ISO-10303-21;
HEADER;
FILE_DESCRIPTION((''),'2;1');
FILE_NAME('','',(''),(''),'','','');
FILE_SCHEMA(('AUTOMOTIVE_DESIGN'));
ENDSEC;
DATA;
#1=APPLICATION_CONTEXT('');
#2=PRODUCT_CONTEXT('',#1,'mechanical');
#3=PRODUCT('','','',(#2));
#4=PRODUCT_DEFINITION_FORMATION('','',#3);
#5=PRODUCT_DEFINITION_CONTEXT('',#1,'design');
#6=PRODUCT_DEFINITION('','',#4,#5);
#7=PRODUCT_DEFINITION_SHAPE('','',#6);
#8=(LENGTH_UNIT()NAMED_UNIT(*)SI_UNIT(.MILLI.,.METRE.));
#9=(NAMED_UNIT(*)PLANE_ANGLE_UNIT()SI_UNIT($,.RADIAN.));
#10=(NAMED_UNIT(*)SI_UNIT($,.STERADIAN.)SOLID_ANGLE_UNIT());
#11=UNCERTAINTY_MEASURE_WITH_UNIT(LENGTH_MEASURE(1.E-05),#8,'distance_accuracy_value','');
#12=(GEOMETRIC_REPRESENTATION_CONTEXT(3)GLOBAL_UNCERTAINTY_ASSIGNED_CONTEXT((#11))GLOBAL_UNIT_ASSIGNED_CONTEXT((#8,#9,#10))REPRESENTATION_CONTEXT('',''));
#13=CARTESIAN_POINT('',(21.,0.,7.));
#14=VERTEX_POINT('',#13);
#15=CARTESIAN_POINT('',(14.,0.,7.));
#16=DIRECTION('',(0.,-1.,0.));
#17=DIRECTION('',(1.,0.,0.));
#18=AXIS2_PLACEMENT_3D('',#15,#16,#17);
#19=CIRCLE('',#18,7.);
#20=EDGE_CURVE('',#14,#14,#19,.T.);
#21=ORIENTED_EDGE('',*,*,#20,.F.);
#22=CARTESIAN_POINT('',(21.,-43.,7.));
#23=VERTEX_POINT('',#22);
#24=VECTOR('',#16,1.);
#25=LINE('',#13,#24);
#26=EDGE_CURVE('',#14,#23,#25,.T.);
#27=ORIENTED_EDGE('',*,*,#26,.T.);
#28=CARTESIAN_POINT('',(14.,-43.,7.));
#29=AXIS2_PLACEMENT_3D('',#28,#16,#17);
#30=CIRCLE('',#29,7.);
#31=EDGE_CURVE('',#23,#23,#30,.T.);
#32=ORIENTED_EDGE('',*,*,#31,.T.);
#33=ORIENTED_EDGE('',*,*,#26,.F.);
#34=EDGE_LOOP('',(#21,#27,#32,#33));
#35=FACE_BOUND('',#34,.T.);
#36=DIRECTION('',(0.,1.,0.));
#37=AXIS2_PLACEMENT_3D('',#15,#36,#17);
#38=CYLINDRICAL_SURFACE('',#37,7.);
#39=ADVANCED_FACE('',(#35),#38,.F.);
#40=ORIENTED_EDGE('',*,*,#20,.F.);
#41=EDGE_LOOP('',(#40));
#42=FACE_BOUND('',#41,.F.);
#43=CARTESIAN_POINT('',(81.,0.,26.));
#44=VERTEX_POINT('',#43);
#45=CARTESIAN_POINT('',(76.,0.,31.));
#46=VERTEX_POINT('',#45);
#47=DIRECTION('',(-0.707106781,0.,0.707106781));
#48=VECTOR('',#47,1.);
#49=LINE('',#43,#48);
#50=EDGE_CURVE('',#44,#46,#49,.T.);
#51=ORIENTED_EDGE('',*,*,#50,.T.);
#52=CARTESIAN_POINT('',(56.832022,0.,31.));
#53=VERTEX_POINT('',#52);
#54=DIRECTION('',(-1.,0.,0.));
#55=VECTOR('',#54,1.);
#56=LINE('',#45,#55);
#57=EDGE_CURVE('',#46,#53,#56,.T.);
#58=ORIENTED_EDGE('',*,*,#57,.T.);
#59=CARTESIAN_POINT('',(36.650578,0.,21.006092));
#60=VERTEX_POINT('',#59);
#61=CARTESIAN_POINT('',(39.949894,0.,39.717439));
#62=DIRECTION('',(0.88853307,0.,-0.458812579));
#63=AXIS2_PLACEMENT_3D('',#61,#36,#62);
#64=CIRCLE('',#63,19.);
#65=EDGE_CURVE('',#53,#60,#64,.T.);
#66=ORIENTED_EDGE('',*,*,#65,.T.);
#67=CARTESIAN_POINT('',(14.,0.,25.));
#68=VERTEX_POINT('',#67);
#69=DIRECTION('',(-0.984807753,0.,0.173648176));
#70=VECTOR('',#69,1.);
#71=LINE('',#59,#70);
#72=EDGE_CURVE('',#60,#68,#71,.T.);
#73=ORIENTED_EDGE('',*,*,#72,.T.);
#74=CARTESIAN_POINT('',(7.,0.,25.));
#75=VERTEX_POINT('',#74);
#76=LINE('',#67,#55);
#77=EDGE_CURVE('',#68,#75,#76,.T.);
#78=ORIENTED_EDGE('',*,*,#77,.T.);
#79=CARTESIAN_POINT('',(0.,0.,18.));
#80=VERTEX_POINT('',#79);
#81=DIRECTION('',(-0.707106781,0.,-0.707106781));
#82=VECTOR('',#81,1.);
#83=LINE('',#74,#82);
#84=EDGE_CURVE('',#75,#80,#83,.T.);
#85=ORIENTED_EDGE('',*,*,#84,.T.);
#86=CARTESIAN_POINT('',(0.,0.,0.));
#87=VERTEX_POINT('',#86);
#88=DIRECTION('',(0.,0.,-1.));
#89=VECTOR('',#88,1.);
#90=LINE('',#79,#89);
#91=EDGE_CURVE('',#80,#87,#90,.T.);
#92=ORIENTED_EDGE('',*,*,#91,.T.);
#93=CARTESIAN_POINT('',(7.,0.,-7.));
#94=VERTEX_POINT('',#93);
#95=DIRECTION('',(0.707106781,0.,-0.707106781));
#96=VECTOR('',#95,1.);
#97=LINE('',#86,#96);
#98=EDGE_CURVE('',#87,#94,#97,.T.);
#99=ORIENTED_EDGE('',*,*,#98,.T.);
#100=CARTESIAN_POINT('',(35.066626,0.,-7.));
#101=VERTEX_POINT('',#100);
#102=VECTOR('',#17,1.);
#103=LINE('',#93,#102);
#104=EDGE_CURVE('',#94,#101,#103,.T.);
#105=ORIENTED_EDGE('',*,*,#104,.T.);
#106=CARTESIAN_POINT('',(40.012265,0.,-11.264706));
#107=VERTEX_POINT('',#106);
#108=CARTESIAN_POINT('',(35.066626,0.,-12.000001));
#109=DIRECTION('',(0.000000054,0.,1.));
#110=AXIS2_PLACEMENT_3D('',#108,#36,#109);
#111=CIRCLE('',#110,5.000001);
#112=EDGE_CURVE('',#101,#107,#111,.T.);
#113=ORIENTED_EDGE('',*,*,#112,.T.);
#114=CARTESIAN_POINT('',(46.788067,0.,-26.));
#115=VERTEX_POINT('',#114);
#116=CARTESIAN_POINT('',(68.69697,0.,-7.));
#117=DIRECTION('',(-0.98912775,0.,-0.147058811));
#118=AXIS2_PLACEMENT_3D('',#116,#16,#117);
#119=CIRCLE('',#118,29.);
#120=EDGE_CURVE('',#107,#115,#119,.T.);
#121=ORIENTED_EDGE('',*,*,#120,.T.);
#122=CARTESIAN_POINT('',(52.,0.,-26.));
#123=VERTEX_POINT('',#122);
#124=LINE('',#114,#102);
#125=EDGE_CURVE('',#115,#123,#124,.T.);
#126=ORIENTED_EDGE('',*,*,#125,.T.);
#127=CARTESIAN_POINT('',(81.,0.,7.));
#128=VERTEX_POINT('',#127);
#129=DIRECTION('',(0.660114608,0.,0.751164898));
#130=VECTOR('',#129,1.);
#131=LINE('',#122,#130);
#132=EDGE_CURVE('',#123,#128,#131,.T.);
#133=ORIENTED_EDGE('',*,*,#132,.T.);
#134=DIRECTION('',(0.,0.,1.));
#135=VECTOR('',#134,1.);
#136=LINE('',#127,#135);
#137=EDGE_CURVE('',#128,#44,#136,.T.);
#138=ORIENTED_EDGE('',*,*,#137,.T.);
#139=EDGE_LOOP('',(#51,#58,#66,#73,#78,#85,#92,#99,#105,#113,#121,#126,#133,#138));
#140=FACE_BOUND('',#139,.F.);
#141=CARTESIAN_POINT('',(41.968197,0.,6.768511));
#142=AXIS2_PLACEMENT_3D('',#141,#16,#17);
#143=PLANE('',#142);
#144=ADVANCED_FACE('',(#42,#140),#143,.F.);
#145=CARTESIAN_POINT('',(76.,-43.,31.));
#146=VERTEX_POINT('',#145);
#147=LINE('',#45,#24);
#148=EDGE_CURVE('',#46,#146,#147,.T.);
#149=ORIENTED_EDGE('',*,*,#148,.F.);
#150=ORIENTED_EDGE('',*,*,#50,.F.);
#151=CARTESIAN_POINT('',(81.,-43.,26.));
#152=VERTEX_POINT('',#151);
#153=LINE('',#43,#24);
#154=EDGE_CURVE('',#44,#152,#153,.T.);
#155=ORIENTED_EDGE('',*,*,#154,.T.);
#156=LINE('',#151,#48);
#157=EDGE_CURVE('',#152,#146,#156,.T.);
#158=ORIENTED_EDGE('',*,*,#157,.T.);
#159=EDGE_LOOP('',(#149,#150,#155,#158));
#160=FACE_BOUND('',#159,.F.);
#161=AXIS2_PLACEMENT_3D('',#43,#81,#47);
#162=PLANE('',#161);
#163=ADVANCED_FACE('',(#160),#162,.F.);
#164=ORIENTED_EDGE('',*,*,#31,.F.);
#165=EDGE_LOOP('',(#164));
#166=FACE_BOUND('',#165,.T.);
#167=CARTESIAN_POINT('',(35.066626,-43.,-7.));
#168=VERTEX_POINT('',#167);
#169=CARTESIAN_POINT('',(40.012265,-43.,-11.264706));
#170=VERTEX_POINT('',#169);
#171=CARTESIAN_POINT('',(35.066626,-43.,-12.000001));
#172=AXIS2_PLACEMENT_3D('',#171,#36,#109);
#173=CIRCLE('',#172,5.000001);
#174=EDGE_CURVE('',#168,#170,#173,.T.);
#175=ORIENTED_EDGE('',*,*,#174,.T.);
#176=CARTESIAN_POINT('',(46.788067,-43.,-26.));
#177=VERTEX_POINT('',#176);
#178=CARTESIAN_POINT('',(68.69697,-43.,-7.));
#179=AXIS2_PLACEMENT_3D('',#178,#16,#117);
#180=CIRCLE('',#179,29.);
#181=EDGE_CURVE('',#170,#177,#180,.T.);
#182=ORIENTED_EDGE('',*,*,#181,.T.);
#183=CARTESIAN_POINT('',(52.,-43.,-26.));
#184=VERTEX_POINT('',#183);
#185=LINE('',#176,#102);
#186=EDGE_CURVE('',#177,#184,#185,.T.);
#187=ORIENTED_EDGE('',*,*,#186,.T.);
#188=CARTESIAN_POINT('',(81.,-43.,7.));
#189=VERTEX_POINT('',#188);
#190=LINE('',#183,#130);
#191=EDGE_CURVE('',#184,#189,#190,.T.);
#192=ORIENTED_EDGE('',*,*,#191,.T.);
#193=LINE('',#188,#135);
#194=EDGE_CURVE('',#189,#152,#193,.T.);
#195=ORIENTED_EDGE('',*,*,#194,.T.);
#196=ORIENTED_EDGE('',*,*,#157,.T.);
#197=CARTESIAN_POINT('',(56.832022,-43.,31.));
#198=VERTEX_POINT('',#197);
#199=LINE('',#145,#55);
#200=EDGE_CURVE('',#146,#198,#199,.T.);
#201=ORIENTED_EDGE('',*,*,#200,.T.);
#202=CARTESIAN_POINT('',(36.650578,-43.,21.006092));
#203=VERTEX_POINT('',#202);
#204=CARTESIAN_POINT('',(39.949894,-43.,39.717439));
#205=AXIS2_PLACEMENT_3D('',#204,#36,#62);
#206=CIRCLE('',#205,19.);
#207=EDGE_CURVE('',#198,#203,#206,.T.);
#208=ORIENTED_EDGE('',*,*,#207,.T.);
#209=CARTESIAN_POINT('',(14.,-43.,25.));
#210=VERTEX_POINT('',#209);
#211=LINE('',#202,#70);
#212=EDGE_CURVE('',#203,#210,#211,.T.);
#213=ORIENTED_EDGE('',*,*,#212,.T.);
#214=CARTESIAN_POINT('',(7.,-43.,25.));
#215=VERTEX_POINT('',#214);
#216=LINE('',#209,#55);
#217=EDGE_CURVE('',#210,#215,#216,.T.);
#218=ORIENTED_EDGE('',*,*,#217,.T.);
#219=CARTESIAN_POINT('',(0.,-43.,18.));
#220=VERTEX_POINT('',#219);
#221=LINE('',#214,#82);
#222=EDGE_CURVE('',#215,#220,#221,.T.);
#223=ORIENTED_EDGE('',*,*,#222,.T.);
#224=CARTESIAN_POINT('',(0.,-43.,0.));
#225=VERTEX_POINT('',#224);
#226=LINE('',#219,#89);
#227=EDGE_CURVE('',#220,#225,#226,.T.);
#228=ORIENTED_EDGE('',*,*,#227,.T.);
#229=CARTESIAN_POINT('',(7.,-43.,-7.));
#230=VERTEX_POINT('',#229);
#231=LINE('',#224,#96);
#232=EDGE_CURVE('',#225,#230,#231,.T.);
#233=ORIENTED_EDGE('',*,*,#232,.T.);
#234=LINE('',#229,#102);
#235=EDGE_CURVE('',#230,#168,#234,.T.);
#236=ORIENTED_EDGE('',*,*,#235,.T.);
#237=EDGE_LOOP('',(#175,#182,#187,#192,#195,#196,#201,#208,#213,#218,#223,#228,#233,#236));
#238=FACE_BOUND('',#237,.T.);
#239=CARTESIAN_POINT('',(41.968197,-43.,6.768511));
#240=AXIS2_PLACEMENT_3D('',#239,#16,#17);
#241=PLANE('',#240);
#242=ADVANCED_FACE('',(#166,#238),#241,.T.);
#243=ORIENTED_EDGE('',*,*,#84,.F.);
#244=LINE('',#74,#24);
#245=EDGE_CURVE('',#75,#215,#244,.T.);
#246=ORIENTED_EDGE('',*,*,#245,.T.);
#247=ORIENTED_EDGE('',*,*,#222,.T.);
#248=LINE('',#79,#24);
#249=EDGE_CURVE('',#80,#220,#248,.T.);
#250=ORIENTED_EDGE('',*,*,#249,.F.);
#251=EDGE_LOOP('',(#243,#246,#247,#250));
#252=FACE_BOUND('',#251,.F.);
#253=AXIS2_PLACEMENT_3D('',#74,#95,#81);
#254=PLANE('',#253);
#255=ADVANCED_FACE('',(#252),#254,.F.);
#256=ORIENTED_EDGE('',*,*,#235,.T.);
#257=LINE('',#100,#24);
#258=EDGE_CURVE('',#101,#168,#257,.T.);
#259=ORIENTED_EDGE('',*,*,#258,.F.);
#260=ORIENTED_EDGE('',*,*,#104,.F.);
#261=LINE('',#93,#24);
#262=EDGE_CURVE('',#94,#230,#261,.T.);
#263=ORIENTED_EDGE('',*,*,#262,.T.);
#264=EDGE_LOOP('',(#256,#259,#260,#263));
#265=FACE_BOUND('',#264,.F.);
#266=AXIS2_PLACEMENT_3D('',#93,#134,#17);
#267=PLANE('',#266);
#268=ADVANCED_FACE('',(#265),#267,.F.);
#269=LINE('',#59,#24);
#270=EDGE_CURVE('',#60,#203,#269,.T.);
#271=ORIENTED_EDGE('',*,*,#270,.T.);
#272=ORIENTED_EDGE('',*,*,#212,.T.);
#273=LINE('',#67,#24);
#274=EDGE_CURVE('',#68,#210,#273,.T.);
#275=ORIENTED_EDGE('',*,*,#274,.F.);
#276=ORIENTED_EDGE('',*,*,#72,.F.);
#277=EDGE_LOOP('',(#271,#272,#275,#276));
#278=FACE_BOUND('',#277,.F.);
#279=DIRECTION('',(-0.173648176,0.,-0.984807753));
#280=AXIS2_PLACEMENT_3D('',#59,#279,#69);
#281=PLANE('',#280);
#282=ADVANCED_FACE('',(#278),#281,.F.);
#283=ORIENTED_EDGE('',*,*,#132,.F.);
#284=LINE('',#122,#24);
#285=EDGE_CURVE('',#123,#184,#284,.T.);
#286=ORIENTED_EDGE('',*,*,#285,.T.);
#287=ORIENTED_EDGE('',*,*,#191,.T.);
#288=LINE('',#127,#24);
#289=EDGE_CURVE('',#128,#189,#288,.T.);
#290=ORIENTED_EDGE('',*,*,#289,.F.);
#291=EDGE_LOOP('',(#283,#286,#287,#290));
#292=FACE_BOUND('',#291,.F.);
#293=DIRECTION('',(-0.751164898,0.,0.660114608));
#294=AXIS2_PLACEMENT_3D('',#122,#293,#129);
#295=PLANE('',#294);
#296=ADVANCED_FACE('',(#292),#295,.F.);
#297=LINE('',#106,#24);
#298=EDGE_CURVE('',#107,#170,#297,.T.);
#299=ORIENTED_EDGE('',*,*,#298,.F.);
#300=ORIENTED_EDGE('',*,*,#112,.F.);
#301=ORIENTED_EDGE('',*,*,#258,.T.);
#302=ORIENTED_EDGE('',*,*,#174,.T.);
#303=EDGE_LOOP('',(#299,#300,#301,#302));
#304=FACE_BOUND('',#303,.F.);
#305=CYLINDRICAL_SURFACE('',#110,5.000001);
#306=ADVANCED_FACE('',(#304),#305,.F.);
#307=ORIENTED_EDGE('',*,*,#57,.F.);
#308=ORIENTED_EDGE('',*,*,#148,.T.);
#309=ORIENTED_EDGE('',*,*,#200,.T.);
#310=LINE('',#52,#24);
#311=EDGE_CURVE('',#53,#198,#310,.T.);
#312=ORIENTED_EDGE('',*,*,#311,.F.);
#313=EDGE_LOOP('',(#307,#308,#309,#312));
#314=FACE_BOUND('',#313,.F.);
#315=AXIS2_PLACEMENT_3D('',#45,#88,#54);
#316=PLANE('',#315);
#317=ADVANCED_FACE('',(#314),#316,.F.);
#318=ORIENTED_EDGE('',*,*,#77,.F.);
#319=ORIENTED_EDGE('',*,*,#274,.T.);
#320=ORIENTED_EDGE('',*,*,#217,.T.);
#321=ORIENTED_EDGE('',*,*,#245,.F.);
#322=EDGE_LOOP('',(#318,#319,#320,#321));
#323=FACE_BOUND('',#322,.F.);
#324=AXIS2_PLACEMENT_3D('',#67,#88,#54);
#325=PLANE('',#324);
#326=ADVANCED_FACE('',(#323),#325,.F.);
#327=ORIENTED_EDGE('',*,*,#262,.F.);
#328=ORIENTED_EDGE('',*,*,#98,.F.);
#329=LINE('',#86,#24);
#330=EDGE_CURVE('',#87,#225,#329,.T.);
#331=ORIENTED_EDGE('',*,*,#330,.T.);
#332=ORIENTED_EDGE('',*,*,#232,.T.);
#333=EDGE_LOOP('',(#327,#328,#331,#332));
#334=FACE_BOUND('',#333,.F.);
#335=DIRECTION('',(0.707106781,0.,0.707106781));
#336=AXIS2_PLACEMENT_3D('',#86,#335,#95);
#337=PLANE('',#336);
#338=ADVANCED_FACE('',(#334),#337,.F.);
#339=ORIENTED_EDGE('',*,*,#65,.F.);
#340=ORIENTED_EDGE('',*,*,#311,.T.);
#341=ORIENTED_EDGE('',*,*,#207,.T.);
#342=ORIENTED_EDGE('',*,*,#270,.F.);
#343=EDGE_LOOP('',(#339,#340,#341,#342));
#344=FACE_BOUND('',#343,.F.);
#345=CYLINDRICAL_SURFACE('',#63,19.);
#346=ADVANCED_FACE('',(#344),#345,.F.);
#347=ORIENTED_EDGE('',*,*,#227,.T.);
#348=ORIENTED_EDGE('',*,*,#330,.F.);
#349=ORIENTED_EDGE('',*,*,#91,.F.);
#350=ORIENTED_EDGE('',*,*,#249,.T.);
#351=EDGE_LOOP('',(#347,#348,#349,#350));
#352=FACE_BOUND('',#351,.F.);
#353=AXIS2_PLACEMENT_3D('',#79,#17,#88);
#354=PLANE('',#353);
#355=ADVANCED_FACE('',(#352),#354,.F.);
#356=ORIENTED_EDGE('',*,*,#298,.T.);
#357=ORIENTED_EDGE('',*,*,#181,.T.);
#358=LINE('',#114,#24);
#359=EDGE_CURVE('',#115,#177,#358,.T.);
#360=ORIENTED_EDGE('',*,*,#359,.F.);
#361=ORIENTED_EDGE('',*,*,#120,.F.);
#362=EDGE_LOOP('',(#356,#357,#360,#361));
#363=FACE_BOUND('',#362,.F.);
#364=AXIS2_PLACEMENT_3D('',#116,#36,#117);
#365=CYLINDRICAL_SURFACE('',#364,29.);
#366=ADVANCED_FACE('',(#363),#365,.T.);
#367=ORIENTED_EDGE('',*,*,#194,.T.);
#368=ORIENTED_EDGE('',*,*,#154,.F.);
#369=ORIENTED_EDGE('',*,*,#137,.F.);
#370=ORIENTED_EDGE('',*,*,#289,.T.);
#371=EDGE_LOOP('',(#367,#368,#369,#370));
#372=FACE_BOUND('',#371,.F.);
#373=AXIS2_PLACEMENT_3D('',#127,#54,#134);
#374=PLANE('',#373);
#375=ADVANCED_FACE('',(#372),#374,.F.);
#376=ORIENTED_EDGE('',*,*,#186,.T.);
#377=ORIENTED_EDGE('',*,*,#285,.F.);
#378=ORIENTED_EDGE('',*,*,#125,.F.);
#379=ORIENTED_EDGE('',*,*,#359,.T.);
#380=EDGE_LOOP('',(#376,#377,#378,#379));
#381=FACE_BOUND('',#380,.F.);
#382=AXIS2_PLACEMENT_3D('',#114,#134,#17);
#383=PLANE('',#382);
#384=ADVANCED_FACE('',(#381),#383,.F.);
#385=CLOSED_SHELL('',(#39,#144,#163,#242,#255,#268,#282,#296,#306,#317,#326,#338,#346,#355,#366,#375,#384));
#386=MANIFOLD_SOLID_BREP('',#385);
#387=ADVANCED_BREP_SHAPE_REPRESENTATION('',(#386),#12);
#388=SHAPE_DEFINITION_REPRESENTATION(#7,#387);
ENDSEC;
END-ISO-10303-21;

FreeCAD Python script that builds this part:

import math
import FreeCAD as App
import Part
import Sketcher

V = App.Vector
Q = App.Units.Quantity

doc = App.newDocument("Part")
body = doc.addObject("PartDesign::Body", "Body")

# Sketch on XZ plane
sketch1 = doc.addObject("Sketcher::SketchObject", "Sketch")
body.addObject(sketch1)
sketch1.AttachmentSupport = (doc.XZ_Plane, [""])
sketch1.MapMode = "FlatFace"
sketch1.addGeometry([
    Part.LineSegment(V(0, 18, 0), V(0, 0, 0)),  # 0
    Part.LineSegment(V(0, 0, 0), V(7, -7, 0)),  # 1
    Part.LineSegment(V(7, -7, 0), V(35, -7, 0)),  # 2
    Part.ArcOfCircle(Part.Circle(V(35, -12, 0), V(0, 0, 1), 5), math.radians(8), math.radians(90)),  # 3
    Part.ArcOfCircle(Part.Circle(V(69, -7, 0), V(0, 0, 1), 29), math.radians(-172), math.radians(-139)),  # 4
    Part.LineSegment(V(47, -26, 0), V(52, -26, 0)),  # 5
    Part.LineSegment(V(52, -26, 0), V(81, 7, 0)),  # 6
    Part.LineSegment(V(81, 7, 0), V(81, 26, 0)),  # 7
    Part.LineSegment(V(81, 26, 0), V(76, 31, 0)),  # 8
    Part.LineSegment(V(76, 31, 0), V(57, 31, 0)),  # 9
    Part.ArcOfCircle(Part.Circle(V(40, 40, 0), V(0, 0, 1), 19), math.radians(-100), math.radians(-27)),  # 10
    Part.LineSegment(V(37, 21, 0), V(14, 25, 0)),  # 11
    Part.LineSegment(V(14, 25, 0), V(7, 25, 0)),  # 12
    Part.LineSegment(V(7, 25, 0), V(0, 18, 0)),  # 13
    Part.Circle(V(14, 7, 0), V(0, 0, 1), 7),  # 14
], False)
sketch1.addConstraint([
    Sketcher.Constraint("Coincident", 0, 2, 1, 1),
    Sketcher.Constraint("Coincident", 1, 2, 2, 1),
    Sketcher.Constraint("Tangent", 2, 2, 3, 2),
    Sketcher.Constraint("Tangent", 3, 1, 4, 1),
    Sketcher.Constraint("Coincident", 4, 2, 5, 1),
    Sketcher.Constraint("Coincident", 5, 2, 6, 1),
    Sketcher.Constraint("Coincident", 6, 2, 7, 1),
    Sketcher.Constraint("Coincident", 7, 2, 8, 1),
    Sketcher.Constraint("Coincident", 8, 2, 9, 1),
    Sketcher.Constraint("Coincident", 9, 2, 10, 2),
    Sketcher.Constraint("Tangent", 10, 1, 11, 1),
    Sketcher.Constraint("Coincident", 11, 2, 12, 1),
    Sketcher.Constraint("Coincident", 12, 2, 13, 1),
    Sketcher.Constraint("Coincident", 13, 2, 0, 1),
    Sketcher.Constraint("Vertical", 0),
    Sketcher.Constraint("Horizontal", 2),
    Sketcher.Constraint("Horizontal", 5),
    Sketcher.Constraint("Vertical", 7),
    Sketcher.Constraint("Horizontal", 9),
    Sketcher.Constraint("Horizontal", 12),
    Sketcher.Constraint("Coincident", 0, 2, -1, 1),
    Sketcher.Constraint("Parallel", 1, 8),
    Sketcher.Constraint("Perpendicular", 8, 13),
    Sketcher.Constraint("Horizontal", 4, 3, 1, 2),
    Sketcher.Constraint("Horizontal", 14, 3, 6, 2),
    Sketcher.Constraint("Vertical", 14, 3, 11, 2),
    Sketcher.Constraint("Vertical", 1, 2, 12, 2),
    Sketcher.Constraint("Equal", 1, 13),
    Sketcher.Constraint("Diameter", 14, 14.0),
    Sketcher.Constraint("Radius", 3, 5.000001),
    Sketcher.Constraint("Radius", 4, 29.0),
    Sketcher.Constraint("Radius", 10, 19.0),
    Sketcher.Constraint("DistanceX", 12, 2, 12, 1, 7.0),
    Sketcher.Constraint("DistanceY", 0, 2, 0, 1, 18.0),
    Sketcher.Constraint("DistanceY", 7, 1, 7, 2, 19.0),
    Sketcher.Constraint("Angle", 11, Q("170 deg")),
    Sketcher.Constraint("Distance", 11, 23.0),
    Sketcher.Constraint("DistanceY", 3, 3, -1, 1, 12.000001),
    Sketcher.Constraint("DistanceY", -1, 1, 14, 3, 7.0),
    Sketcher.Constraint("DistanceY", 4, 2, -1, 1, 26.0),
    Sketcher.Constraint("DistanceX", -1, 1, 5, 2, 52.0),
    Sketcher.Constraint("DistanceX", -1, 1, 6, 2, 81.0),
    Sketcher.Constraint("DistanceX", -1, 1, 8, 2, 76.0),
    Sketcher.Constraint("DistanceX", 2, 1, 2, 2, 28.066626),
])
pad1 = doc.addObject("PartDesign::Pad", "Pad")
body.addObject(pad1)
pad1.Profile = sketch1
pad1.Length = 43

doc.recompute()
